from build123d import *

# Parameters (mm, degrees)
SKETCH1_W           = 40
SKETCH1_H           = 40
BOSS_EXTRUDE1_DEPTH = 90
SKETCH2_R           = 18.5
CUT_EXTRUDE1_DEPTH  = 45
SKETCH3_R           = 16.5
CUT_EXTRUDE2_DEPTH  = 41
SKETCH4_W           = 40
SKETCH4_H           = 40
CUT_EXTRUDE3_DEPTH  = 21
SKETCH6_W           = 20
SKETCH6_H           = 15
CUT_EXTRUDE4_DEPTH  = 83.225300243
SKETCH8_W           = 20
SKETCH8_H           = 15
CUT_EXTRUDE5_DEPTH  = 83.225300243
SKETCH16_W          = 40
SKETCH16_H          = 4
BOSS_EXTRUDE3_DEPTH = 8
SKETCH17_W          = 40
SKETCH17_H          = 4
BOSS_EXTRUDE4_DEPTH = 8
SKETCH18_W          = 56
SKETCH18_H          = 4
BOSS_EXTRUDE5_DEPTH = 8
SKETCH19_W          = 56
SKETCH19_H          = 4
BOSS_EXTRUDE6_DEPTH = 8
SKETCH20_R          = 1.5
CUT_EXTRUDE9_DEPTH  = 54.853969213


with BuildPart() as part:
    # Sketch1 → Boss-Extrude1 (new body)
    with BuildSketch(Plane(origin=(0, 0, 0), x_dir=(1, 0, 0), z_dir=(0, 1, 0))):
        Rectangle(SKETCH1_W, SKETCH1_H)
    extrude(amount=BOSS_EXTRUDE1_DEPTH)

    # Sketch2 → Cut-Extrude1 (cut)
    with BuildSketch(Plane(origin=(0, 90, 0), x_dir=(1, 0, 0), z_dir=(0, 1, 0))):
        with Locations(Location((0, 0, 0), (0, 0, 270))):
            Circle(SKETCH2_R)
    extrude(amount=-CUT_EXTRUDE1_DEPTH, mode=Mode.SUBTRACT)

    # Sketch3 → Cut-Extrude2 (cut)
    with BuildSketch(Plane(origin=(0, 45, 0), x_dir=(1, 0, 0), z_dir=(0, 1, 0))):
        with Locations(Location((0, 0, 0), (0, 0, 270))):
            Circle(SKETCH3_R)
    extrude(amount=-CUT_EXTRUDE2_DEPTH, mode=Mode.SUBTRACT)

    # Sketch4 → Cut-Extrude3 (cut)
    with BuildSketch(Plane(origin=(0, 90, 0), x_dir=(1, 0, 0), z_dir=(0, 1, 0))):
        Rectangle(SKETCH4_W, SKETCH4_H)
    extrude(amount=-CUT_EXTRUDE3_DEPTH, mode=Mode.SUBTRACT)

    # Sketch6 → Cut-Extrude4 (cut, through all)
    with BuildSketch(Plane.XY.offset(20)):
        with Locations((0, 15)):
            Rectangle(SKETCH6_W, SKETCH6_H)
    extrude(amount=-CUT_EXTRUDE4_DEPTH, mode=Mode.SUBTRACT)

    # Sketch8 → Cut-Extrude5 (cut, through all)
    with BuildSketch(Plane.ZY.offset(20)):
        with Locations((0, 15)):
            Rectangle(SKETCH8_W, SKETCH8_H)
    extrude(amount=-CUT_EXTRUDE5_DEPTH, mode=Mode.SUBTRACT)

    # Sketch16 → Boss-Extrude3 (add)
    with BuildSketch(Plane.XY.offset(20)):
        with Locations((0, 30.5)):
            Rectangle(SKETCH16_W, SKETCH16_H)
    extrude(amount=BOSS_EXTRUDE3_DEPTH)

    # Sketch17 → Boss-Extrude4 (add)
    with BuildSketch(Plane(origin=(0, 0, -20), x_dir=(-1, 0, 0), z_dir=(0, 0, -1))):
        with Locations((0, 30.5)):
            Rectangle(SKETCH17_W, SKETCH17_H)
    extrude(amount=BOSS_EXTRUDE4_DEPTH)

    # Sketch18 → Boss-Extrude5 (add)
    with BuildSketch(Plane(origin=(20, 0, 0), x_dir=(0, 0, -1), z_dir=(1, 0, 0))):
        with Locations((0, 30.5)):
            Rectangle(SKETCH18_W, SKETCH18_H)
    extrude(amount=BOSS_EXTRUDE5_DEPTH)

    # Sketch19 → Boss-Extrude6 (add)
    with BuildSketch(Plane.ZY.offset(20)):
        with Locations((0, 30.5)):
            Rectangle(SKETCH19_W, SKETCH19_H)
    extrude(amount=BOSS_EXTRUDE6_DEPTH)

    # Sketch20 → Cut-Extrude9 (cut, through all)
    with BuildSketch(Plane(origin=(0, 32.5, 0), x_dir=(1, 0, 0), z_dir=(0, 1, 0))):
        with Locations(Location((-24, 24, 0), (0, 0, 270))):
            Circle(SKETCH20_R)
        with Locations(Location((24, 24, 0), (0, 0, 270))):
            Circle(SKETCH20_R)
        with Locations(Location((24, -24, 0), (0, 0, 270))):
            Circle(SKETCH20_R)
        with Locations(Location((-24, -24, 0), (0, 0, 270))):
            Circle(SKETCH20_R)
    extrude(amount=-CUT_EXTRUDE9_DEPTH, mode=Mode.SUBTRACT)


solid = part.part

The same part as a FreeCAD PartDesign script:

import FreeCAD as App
import Part
import Sketcher
Q = App.Units.Quantity

doc = App.newDocument("Part")
params = doc.addObject("Spreadsheet::Sheet", "Params")
for row, (alias, value) in enumerate([
    ("sketch1_width", "40 mm"),
    ("pad1_length", "90 mm"),
    ("sketch2_diameter", "37 mm"),
    ("pocket1_length", "45 mm"),
    ("sketch3_diameter", "33 mm"),
    ("pocket2_length", "41 mm"),
    ("sketch4_width", "40 mm"),
    ("pocket3_length", "21 mm"),
    ("sketch5_width", "20 mm"),
    ("sketch5_height", "15 mm"),
    ("sketch6_width", "15 mm"),
    ("sketch6_height", "20 mm"),
    ("sketch7_width", "40 mm"),
    ("sketch7_height", "4 mm"),
    ("pad2_length", "8 mm"),
    ("sketch8_width", "40 mm"),
    ("sketch8_height", "4 mm"),
    ("pad3_length", "8 mm"),
    ("sketch9_width", "4 mm"),
    ("sketch9_height", "56 mm"),
    ("pad4_length", "8 mm"),
    ("sketch10_width", "4 mm"),
    ("sketch10_height", "56 mm"),
    ("pad5_length", "8 mm"),
    ("sketch11_diameter", "3 mm"),
], start=1):
    params.set(f"A{row}", alias)
    params.set(f"B{row}", "=" + value)
    params.setAlias(f"B{row}", alias)

body = doc.addObject("PartDesign::Body", "Body")

# Sketch on XZ plane
sketch1 = body.newObject("Sketcher::SketchObject", "Sketch")
sketch1.AttachmentSupport = (doc.getObject("XZ_Plane"), [""])
sketch1.MapMode = "FlatFace"
sketch1.addGeometry(Part.LineSegment(App.Vector(-20, -20, 0), App.Vector(-20, 20, 0)), False)
sketch1.addGeometry(Part.LineSegment(App.Vector(-20, 20, 0), App.Vector(20, 20, 0)), False)
sketch1.addGeometry(Part.LineSegment(App.Vector(20, 20, 0), App.Vector(20, -20, 0)), False)
sketch1.addGeometry(Part.LineSegment(App.Vector(20, -20, 0), App.Vector(-20, -20, 0)), False)
sketch1.addConstraint(Sketcher.Constraint("Coincident", 0, 2, 1, 1))
sketch1.addConstraint(Sketcher.Constraint("Coincident", 1, 2, 2, 1))
sketch1.addConstraint(Sketcher.Constraint("Coincident", 2, 2, 3, 1))
sketch1.addConstraint(Sketcher.Constraint("Coincident", 3, 2, 0, 1))
sketch1.addConstraint(Sketcher.Constraint("Vertical", 0))
sketch1.addConstraint(Sketcher.Constraint("Horizontal", 1))
sketch1.addConstraint(Sketcher.Constraint("Vertical", 2))
sketch1.addConstraint(Sketcher.Constraint("Horizontal", 3))
sketch1.addConstraint(Sketcher.Constraint("Symmetric", 0, 2, 2, 2, -1, 1))
sketch1.addConstraint(Sketcher.Constraint("Equal", 3, 0))
sketch1.addConstraint(Sketcher.Constraint("DistanceX", 1, 1, 1, 2, Q("40 mm")))
sketch1.setExpression("Constraints[10]", "Params.sketch1_width")
pad1 = body.newObject("PartDesign::Pad", "Pad")
pad1.Profile = sketch1
pad1.setExpression("Length", "Params.pad1_length")
pad1.Reversed = True

# Sketch on XZ plane
sketch2 = body.newObject("Sketcher::SketchObject", "Sketch001")
sketch2.AttachmentSupport = (doc.getObject("XZ_Plane"), [""])
sketch2.MapMode = "FlatFace"
sketch2.AttachmentOffset = App.Placement(App.Vector(0, 0, -90), App.Rotation())
sketch2.addGeometry(Part.Circle(App.Vector(0, 0, 0), App.Vector(0, 0, 1), 18), False)
sketch2.addConstraint(Sketcher.Constraint("Coincident", 0, 3, -1, 1))
sketch2.addConstraint(Sketcher.Constraint("Diameter", 0, Q("37 mm")))
sketch2.setExpression("Constraints[1]", "Params.sketch2_diameter")
pocket1 = body.newObject("PartDesign::Pocket", "Pocket")
pocket1.Profile = sketch2
pocket1.setExpression("Length", "Params.pocket1_length")
pocket1.Reversed = True

# Sketch on XZ plane
sketch3 = body.newObject("Sketcher::SketchObject", "Sketch002")
sketch3.AttachmentSupport = (doc.getObject("XZ_Plane"), [""])
sketch3.MapMode = "FlatFace"
sketch3.AttachmentOffset = App.Placement(App.Vector(0, 0, -45), App.Rotation())
sketch3.addGeometry(Part.Circle(App.Vector(0, 0, 0), App.Vector(0, 0, 1), 16), False)
sketch3.addConstraint(Sketcher.Constraint("Coincident", 0, 3, -1, 1))
sketch3.addConstraint(Sketcher.Constraint("Diameter", 0, Q("33 mm")))
sketch3.setExpression("Constraints[1]", "Params.sketch3_diameter")
pocket2 = body.newObject("PartDesign::Pocket", "Pocket001")
pocket2.Profile = sketch3
pocket2.setExpression("Length", "Params.pocket2_length")
pocket2.Reversed = True

# Sketch on XZ plane
sketch4 = body.newObject("Sketcher::SketchObject", "Sketch003")
sketch4.AttachmentSupport = (doc.getObject("XZ_Plane"), [""])
sketch4.MapMode = "FlatFace"
sketch4.AttachmentOffset = App.Placement(App.Vector(0, 0, -90), App.Rotation())
sketch4.addGeometry(Part.LineSegment(App.Vector(-20, -20, 0), App.Vector(-20, 20, 0)), False)
sketch4.addGeometry(Part.LineSegment(App.Vector(-20, 20, 0), App.Vector(20, 20, 0)), False)
sketch4.addGeometry(Part.LineSegment(App.Vector(20, 20, 0), App.Vector(20, -20, 0)), False)
sketch4.addGeometry(Part.LineSegment(App.Vector(20, -20, 0), App.Vector(-20, -20, 0)), False)
sketch4.addConstraint(Sketcher.Constraint("Coincident", 0, 2, 1, 1))
sketch4.addConstraint(Sketcher.Constraint("Coincident", 1, 2, 2, 1))
sketch4.addConstraint(Sketcher.Constraint("Coincident", 2, 2, 3, 1))
sketch4.addConstraint(Sketcher.Constraint("Coincident", 3, 2, 0, 1))
sketch4.addConstraint(Sketcher.Constraint("Vertical", 0))
sketch4.addConstraint(Sketcher.Constraint("Horizontal", 1))
sketch4.addConstraint(Sketcher.Constraint("Vertical", 2))
sketch4.addConstraint(Sketcher.Constraint("Horizontal", 3))
sketch4.addConstraint(Sketcher.Constraint("Symmetric", 0, 2, 2, 2, -1, 1))
sketch4.addConstraint(Sketcher.Constraint("Equal", 3, 0))
sketch4.addConstraint(Sketcher.Constraint("DistanceX", 1, 1, 1, 2, Q("40 mm")))
sketch4.setExpression("Constraints[10]", "Params.sketch4_width")
pocket3 = body.newObject("PartDesign::Pocket", "Pocket002")
pocket3.Profile = sketch4
pocket3.setExpression("Length", "Params.pocket3_length")
pocket3.Reversed = True

# Sketch on XY plane
sketch5 = body.newObject("Sketcher::SketchObject", "Sketch004")
sketch5.AttachmentSupport = (doc.getObject("XY_Plane"), [""])
sketch5.MapMode = "FlatFace"
sketch5.AttachmentOffset = App.Placement(App.Vector(0, 0, 20), App.Rotation())
sketch5.addGeometry(Part.LineSegment(App.Vector(-10, 22, 0), App.Vector(-10, 8, 0)), False)
sketch5.addGeometry(Part.LineSegment(App.Vector(-10, 8, 0), App.Vector(10, 8, 0)), False)
sketch5.addGeometry(Part.LineSegment(App.Vector(10, 8, 0), App.Vector(10, 22, 0)), False)
sketch5.addGeometry(Part.LineSegment(App.Vector(10, 22, 0), App.Vector(-10, 22, 0)), False)
sketch5.addConstraint(Sketcher.Constraint("Coincident", 0, 2, 1, 1))
sketch5.addConstraint(Sketcher.Constraint("Coincident", 1, 2, 2, 1))
sketch5.addConstraint(Sketcher.Constraint("Coincident", 2, 2, 3, 1))
sketch5.addConstraint(Sketcher.Constraint("Coincident", 3, 2, 0, 1))
sketch5.addConstraint(Sketcher.Constraint("Vertical", 0))
sketch5.addConstraint(Sketcher.Constraint("Horizontal", 1))
sketch5.addConstraint(Sketcher.Constraint("Vertical", 2))
sketch5.addConstraint(Sketcher.Constraint("Horizontal", 3))
sketch5.addConstraint(Sketcher.Constraint("DistanceX", 1, 1, 1, 2, Q("20 mm")))
sketch5.addConstraint(Sketcher.Constraint("DistanceY", 0, 2, 0, 1, Q("15 mm")))
sketch5.addConstraint(Sketcher.Constraint("DistanceX", 0, 2, -1, 1, Q("10 mm")))
sketch5.addConstraint(Sketcher.Constraint("DistanceY", -1, 1, 0, 2, Q("7.5 mm")))
sketch5.setExpression("Constraints[8]", "Params.sketch5_width")
sketch5.setExpression("Constraints[9]", "Params.sketch5_height")
pocket4 = body.newObject("PartDesign::Pocket", "Pocket003")
pocket4.Profile = sketch5
pocket4.Type = "ThroughAll"

# Sketch on YZ plane
sketch6 = body.newObject("Sketcher::SketchObject", "Sketch005")
sketch6.AttachmentSupport = (doc.getObject("YZ_Plane"), [""])
sketch6.MapMode = "FlatFace"
sketch6.AttachmentOffset = App.Placement(App.Vector(0, 0, -20), App.Rotation())
sketch6.addGeometry(Part.LineSegment(App.Vector(22, -10, 0), App.Vector(8, -10, 0)), False)
sketch6.addGeometry(Part.LineSegment(App.Vector(8, -10, 0), App.Vector(8, 10, 0)), False)
sketch6.addGeometry(Part.LineSegment(App.Vector(8, 10, 0), App.Vector(22, 10, 0)), False)
sketch6.addGeometry(Part.LineSegment(App.Vector(22, 10, 0), App.Vector(22, -10, 0)), False)
sketch6.addConstraint(Sketcher.Constraint("Coincident", 0, 2, 1, 1))
sketch6.addConstraint(Sketcher.Constraint("Coincident", 1, 2, 2, 1))
sketch6.addConstraint(Sketcher.Constraint("Coincident", 2, 2, 3, 1))
sketch6.addConstraint(Sketcher.Constraint("Coincident", 3, 2, 0, 1))
sketch6.addConstraint(Sketcher.Constraint("Horizontal", 0))
sketch6.addConstraint(Sketcher.Constraint("Vertical", 1))
sketch6.addConstraint(Sketcher.Constraint("Horizontal", 2))
sketch6.addConstraint(Sketcher.Constraint("Vertical", 3))
sketch6.addConstraint(Sketcher.Constraint("DistanceX", 0, 2, 0, 1, Q("15 mm")))
sketch6.addConstraint(Sketcher.Constraint("DistanceY", 1, 1, 1, 2, Q("20 mm")))
sketch6.addConstraint(Sketcher.Constraint("DistanceY", 0, 2, -1, 1, Q("10 mm")))
sketch6.addConstraint(Sketcher.Constraint("DistanceX", -1, 1, 0, 2, Q("7.5 mm")))
sketch6.setExpression("Constraints[8]", "Params.sketch6_width")
sketch6.setExpression("Constraints[9]", "Params.sketch6_height")
pocket5 = body.newObject("PartDesign::Pocket", "Pocket004")
pocket5.Profile = sketch6
pocket5.Type = "ThroughAll"
pocket5.Reversed = True

# Sketch on XY plane
sketch7 = body.newObject("Sketcher::SketchObject", "Sketch006")
sketch7.AttachmentSupport = (doc.getObject("XY_Plane"), [""])
sketch7.MapMode = "FlatFace"
sketch7.AttachmentOffset = App.Placement(App.Vector(0, 0, 20), App.Rotation())
sketch7.addGeometry(Part.LineSegment(App.Vector(-20, 32.5, 0), App.Vector(-20, 28.5, 0)), False)
sketch7.addGeometry(Part.LineSegment(App.Vector(-20, 28.5, 0), App.Vector(20, 28.5, 0)), False)
sketch7.addGeometry(Part.LineSegment(App.Vector(20, 28.5, 0), App.Vector(20, 32.5, 0)), False)
sketch7.addGeometry(Part.LineSegment(App.Vector(20, 32.5, 0), App.Vector(-20, 32.5, 0)), False)
sketch7.addConstraint(Sketcher.Constraint("Coincident", 0, 2, 1, 1))
sketch7.addConstraint(Sketcher.Constraint("Coincident", 1, 2, 2, 1))
sketch7.addConstraint(Sketcher.Constraint("Coincident", 2, 2, 3, 1))
sketch7.addConstraint(Sketcher.Constraint("Coincident", 3, 2, 0, 1))
sketch7.addConstraint(Sketcher.Constraint("Vertical", 0))
sketch7.addConstraint(Sketcher.Constraint("Horizontal", 1))
sketch7.addConstraint(Sketcher.Constraint("Vertical", 2))
sketch7.addConstraint(Sketcher.Constraint("Horizontal", 3))
sketch7.addConstraint(Sketcher.Constraint("DistanceX", 1, 1, 1, 2, Q("40 mm")))
sketch7.addConstraint(Sketcher.Constraint("DistanceY", 0, 2, 0, 1, Q("4 mm")))
sketch7.addConstraint(Sketcher.Constraint("DistanceX", 0, 2, -1, 1, Q("20 mm")))
sketch7.addConstraint(Sketcher.Constraint("DistanceY", -1, 1, 0, 2, Q("28.5 mm")))
sketch7.setExpression("Constraints[8]", "Params.sketch7_width")
sketch7.setExpression("Constraints[9]", "Params.sketch7_height")
pad2 = body.newObject("PartDesign::Pad", "Pad001")
pad2.Profile = sketch7
pad2.setExpression("Length", "Params.pad2_length")

# Sketch on XY plane
sketch8 = body.newObject("Sketcher::SketchObject", "Sketch007")
sketch8.AttachmentSupport = (doc.getObject("XY_Plane"), [""])
sketch8.MapMode = "FlatFace"
sketch8.AttachmentOffset = App.Placement(App.Vector(0, 0, -20), App.Rotation())
sketch8.addGeometry(Part.LineSegment(App.Vector(20, 32.5, 0), App.Vector(20, 28.5, 0)), False)
sketch8.addGeometry(Part.LineSegment(App.Vector(20, 28.5, 0), App.Vector(-20, 28.5, 0)), False)
sketch8.addGeometry(Part.LineSegment(App.Vector(-20, 28.5, 0), App.Vector(-20, 32.5, 0)), False)
sketch8.addGeometry(Part.LineSegment(App.Vector(-20, 32.5, 0), App.Vector(20, 32.5, 0)), False)
sketch8.addConstraint(Sketcher.Constraint("Coincident", 0, 2, 1, 1))
sketch8.addConstraint(Sketcher.Constraint("Coincident", 1, 2, 2, 1))
sketch8.addConstraint(Sketcher.Constraint("Coincident", 2, 2, 3, 1))
sketch8.addConstraint(Sketcher.Constraint("Coincident", 3, 2, 0, 1))
sketch8.addConstraint(Sketcher.Constraint("Vertical", 0))
sketch8.addConstraint(Sketcher.Constraint("Horizontal", 1))
sketch8.addConstraint(Sketcher.Constraint("Vertical", 2))
sketch8.addConstraint(Sketcher.Constraint("Horizontal", 3))
sketch8.addConstraint(Sketcher.Constraint("DistanceX", 1, 2, 1, 1, Q("40 mm")))
sketch8.addConstraint(Sketcher.Constraint("DistanceY", 0, 2, 0, 1, Q("4 mm")))
sketch8.addConstraint(Sketcher.Constraint("DistanceX", -1, 1, 0, 2, Q("20 mm")))
sketch8.addConstraint(Sketcher.Constraint("DistanceY", -1, 1, 0, 2, Q("28.5 mm")))
sketch8.setExpression("Constraints[8]", "Params.sketch8_width")
sketch8.setExpression("Constraints[9]", "Params.sketch8_height")
pad3 = body.newObject("PartDesign::Pad", "Pad002")
pad3.Profile = sketch8
pad3.setExpression("Length", "Params.pad3_length")
pad3.Reversed = True

# Sketch on YZ plane
sketch9 = body.newObject("Sketcher::SketchObject", "Sketch008")
sketch9.AttachmentSupport = (doc.getObject("YZ_Plane"), [""])
sketch9.MapMode = "FlatFace"
sketch9.AttachmentOffset = App.Placement(App.Vector(0, 0, 20), App.Rotation())
sketch9.addGeometry(Part.LineSegment(App.Vector(32.5, 28, 0), App.Vector(28.5, 28, 0)), False)
sketch9.addGeometry(Part.LineSegment(App.Vector(28.5, 28, 0), App.Vector(28.5, -28, 0)), False)
sketch9.addGeometry(Part.LineSegment(App.Vector(28.5, -28, 0), App.Vector(32.5, -28, 0)), False)
sketch9.addGeometry(Part.LineSegment(App.Vector(32.5, -28, 0), App.Vector(32.5, 28, 0)), False)
sketch9.addConstraint(Sketcher.Constraint("Coincident", 0, 2, 1, 1))
sketch9.addConstraint(Sketcher.Constraint("Coincident", 1, 2, 2, 1))
sketch9.addConstraint(Sketcher.Constraint("Coincident", 2, 2, 3, 1))
sketch9.addConstraint(Sketcher.Constraint("Coincident", 3, 2, 0, 1))
sketch9.addConstraint(Sketcher.Constraint("Horizontal", 0))
sketch9.addConstraint(Sketcher.Constraint("Vertical", 1))
sketch9.addConstraint(Sketcher.Constraint("Horizontal", 2))
sketch9.addConstraint(Sketcher.Constraint("Vertical", 3))
sketch9.addConstraint(Sketcher.Constraint("DistanceX", 0, 2, 0, 1, Q("4 mm")))
sketch9.addConstraint(Sketcher.Constraint("DistanceY", 1, 2, 1, 1, Q("56 mm")))
sketch9.addConstraint(Sketcher.Constraint("DistanceY", -1, 1, 0, 2, Q("28 mm")))
sketch9.addConstraint(Sketcher.Constraint("DistanceX", -1, 1, 0, 2, Q("28.5 mm")))
sketch9.setExpression("Constraints[8]", "Params.sketch9_width")
sketch9.setExpression("Constraints[9]", "Params.sketch9_height")
pad4 = body.newObject("PartDesign::Pad", "Pad003")
pad4.Profile = sketch9
pad4.setExpression("Length", "Params.pad4_length")

# Sketch on YZ plane
sketch10 = body.newObject("Sketcher::SketchObject", "Sketch009")
sketch10.AttachmentSupport = (doc.getObject("YZ_Plane"), [""])
sketch10.MapMode = "FlatFace"
sketch10.AttachmentOffset = App.Placement(App.Vector(0, 0, -20), App.Rotation())
sketch10.addGeometry(Part.LineSegment(App.Vector(32.5, -28, 0), App.Vector(28.5, -28, 0)), False)
sketch10.addGeometry(Part.LineSegment(App.Vector(28.5, -28, 0), App.Vector(28.5, 28, 0)), False)
sketch10.addGeometry(Part.LineSegment(App.Vector(28.5, 28, 0), App.Vector(32.5, 28, 0)), False)
sketch10.addGeometry(Part.LineSegment(App.Vector(32.5, 28, 0), App.Vector(32.5, -28, 0)), False)
sketch10.addConstraint(Sketcher.Constraint("Coincident", 0, 2, 1, 1))
sketch10.addConstraint(Sketcher.Constraint("Coincident", 1, 2, 2, 1))
sketch10.addConstraint(Sketcher.Constraint("Coincident", 2, 2, 3, 1))
sketch10.addConstraint(Sketcher.Constraint("Coincident", 3, 2, 0, 1))
sketch10.addConstraint(Sketcher.Constraint("Horizontal", 0))
sketch10.addConstraint(Sketcher.Constraint("Vertical", 1))
sketch10.addConstraint(Sketcher.Constraint("Horizontal", 2))
sketch10.addConstraint(Sketcher.Constraint("Vertical", 3))
sketch10.addConstraint(Sketcher.Constraint("DistanceX", 0, 2, 0, 1, Q("4 mm")))
sketch10.addConstraint(Sketcher.Constraint("DistanceY", 1, 1, 1, 2, Q("56 mm")))
sketch10.addConstraint(Sketcher.Constraint("DistanceY", 0, 2, -1, 1, Q("28 mm")))
sketch10.addConstraint(Sketcher.Constraint("DistanceX", -1, 1, 0, 2, Q("28.5 mm")))
sketch10.setExpression("Constraints[8]", "Params.sketch10_width")
sketch10.setExpression("Constraints[9]", "Params.sketch10_height")
pad5 = body.newObject("PartDesign::Pad", "Pad004")
pad5.Profile = sketch10
pad5.setExpression("Length", "Params.pad5_length")
pad5.Reversed = True

# Sketch on XZ plane
sketch11 = body.newObject("Sketcher::SketchObject", "Sketch010")
sketch11.AttachmentSupport = (doc.getObject("XZ_Plane"), [""])
sketch11.MapMode = "FlatFace"
sketch11.AttachmentOffset = App.Placement(App.Vector(0, 0, -32.5), App.Rotation())
sketch11.addGeometry(Part.Circle(App.Vector(-24, -24, 0), App.Vector(0, 0, 1), 1.5), False)
sketch11.addGeometry(Part.Circle(App.Vector(24, -24, 0), App.Vector(0, 0, 1), 1.5), False)
sketch11.addGeometry(Part.Circle(App.Vector(24, 24, 0), App.Vector(0, 0, 1), 1.5), False)
sketch11.addGeometry(Part.Circle(App.Vector(-24, 24, 0), App.Vector(0, 0, 1), 1.5), False)
sketch11.addConstraint(Sketcher.Constraint("Equal", 0, 1))
sketch11.addConstraint(Sketcher.Constraint("Equal", 1, 2))
sketch11.addConstraint(Sketcher.Constraint("Equal", 2, 3))
sketch11.addConstraint(Sketcher.Constraint("Symmetric", 0, 3, 2, 3, -1, 1))
sketch11.addConstraint(Sketcher.Constraint("Symmetric", 1, 3, 3, 3, -1, 1))
sketch11.addConstraint(Sketcher.Constraint("Symmetric", 0, 3, 1, 3, -2))
sketch11.addConstraint(Sketcher.Constraint("Diameter", 0, Q("3 mm")))
sketch11.addConstraint(Sketcher.Constraint("DistanceX", 0, 3, -1, 1, Q("24 mm")))
sketch11.addConstraint(Sketcher.Constraint("DistanceY", 0, 3, -1, 1, Q("24 mm")))
sketch11.setExpression("Constraints[6]", "Params.sketch11_diameter")
pocket6 = body.newObject("PartDesign::Pocket", "Pocket005")
pocket6.Profile = sketch11
pocket6.Type = "ThroughAll"
pocket6.Reversed = True

doc.recompute()
